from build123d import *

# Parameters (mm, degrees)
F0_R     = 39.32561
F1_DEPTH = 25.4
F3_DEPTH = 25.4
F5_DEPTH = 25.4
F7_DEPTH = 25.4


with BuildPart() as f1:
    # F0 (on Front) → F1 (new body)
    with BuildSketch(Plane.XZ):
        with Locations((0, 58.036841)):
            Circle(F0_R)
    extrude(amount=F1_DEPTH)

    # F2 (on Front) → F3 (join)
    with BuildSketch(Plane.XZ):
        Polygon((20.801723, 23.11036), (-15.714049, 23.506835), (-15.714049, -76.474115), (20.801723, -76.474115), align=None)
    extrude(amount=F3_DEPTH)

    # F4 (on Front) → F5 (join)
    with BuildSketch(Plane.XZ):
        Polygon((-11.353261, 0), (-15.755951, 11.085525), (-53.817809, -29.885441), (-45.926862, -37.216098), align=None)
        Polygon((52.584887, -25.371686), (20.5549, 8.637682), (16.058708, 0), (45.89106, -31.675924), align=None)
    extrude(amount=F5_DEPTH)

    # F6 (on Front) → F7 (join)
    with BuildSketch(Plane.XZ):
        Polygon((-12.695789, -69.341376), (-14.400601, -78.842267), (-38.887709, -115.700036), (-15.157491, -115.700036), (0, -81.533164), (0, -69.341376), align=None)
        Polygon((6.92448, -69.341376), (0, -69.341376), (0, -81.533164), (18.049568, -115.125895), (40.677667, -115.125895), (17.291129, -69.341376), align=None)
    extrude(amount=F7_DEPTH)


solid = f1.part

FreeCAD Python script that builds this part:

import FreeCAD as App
import Part
import Sketcher
from FreeCAD import Vector
Q = App.Units.Quantity


def add_polygon(sketch, points):
    """Adds a closed chain of lines whose ends are joined by coincident constraints."""
    first, n = sketch.GeometryCount, len(points)
    for a, b in zip(points, points[1:] + points[:1]):
        sketch.addGeometry(Part.LineSegment(App.Vector(*a, 0), App.Vector(*b, 0)), False)
    for i in range(n):
        sketch.addConstraint(Sketcher.Constraint("Coincident", first + i, 2, first + (i + 1) % n, 1))

doc = App.newDocument("Part")
body = doc.addObject("PartDesign::Body", "Body")

# Sketch on XZ plane
sketch1 = body.newObject("Sketcher::SketchObject", "Sketch")
sketch1.AttachmentSupport = (doc.getObject("XZ_Plane"), [""])
sketch1.MapMode = "FlatFace"
sketch1.addGeometry(Part.Circle(Vector(0, 58, 0), Vector(0, 0, 1), 39), False)
sketch1.addConstraint(Sketcher.Constraint("PointOnObject", 0, 3, -2))
sketch1.addConstraint(Sketcher.Constraint("Diameter", 0, Q("78.65122 mm")))
sketch1.addConstraint(Sketcher.Constraint("DistanceY", -1, 1, 0, 3, Q("58.036841 mm")))
pad1 = body.newObject("PartDesign::Pad", "Pad")
pad1.Profile = sketch1
pad1.Length = Q("1 in")

# Sketch on XZ plane
sketch2 = body.newObject("Sketcher::SketchObject", "Sketch001")
sketch2.AttachmentSupport = (doc.getObject("XZ_Plane"), [""])
sketch2.MapMode = "FlatFace"
add_polygon(sketch2, [(21, 23), (-16, 24), (-16, -76), (21, -76)])  # lines 0-3
sketch2.addConstraint(Sketcher.Constraint("Vertical", 1))
sketch2.addConstraint(Sketcher.Constraint("Horizontal", 2))
sketch2.addConstraint(Sketcher.Constraint("Vertical", 3))
sketch2.addConstraint(Sketcher.Constraint("DistanceX", 2, 1, 2, 2, Q("36.515772 mm")))
sketch2.addConstraint(Sketcher.Constraint("DistanceY", 1, 2, 1, 1, Q("99.98095 mm")))
sketch2.addConstraint(Sketcher.Constraint("DistanceY", 3, 1, 3, 2, Q("99.584475 mm")))
sketch2.addConstraint(Sketcher.Constraint("DistanceX", 0, 2, -1, 1, Q("15.714049 mm")))
sketch2.addConstraint(Sketcher.Constraint("DistanceY", -1, 1, 3, 2, Q("23.11036 mm")))
pad2 = body.newObject("PartDesign::Pad", "Pad001")
pad2.Profile = sketch2
pad2.Length = Q("1 in")

# Sketch on XZ plane
sketch3 = body.newObject("Sketcher::SketchObject", "Sketch002")
sketch3.AttachmentSupport = (doc.getObject("XZ_Plane"), [""])
sketch3.MapMode = "FlatFace"
add_polygon(sketch3, [(-11, 0), (-16, 11), (-54, -30), (-46, -37)])  # lines 0-3
add_polygon(sketch3, [(53, -25), (21, 9), (16, 0), (46, -32)])  # lines 4-7
sketch3.addConstraint(Sketcher.Constraint("PointOnObject", 3, 2, -1))
sketch3.addConstraint(Sketcher.Constraint("PointOnObject", 5, 2, -1))
sketch3.addConstraint(Sketcher.Constraint("Perpendicular", 1, 2))
sketch3.addConstraint(Sketcher.Constraint("Perpendicular", 2, 3))
sketch3.addConstraint(Sketcher.Constraint("Parallel", 4, 6))
sketch3.addConstraint(Sketcher.Constraint("Perpendicular", 6, 7))
sketch3.addConstraint(Sketcher.Constraint("DistanceY", 2, 2, -1, 1, Q("37.216098 mm")))
sketch3.addConstraint(Sketcher.Constraint("DistanceX", -1, 1, 4, 2, Q("20.5549 mm")))
sketch3.addConstraint(Sketcher.Constraint("DistanceX", 2, 2, 3, 2, Q("34.573601 mm")))
sketch3.addConstraint(Sketcher.Constraint("Distance", 1, Q("55.922492 mm")))
sketch3.addConstraint(Sketcher.Constraint("Distance", 2, Q("10.770588 mm")))
sketch3.addConstraint(Sketcher.Constraint("Distance", 6, Q("43.512451 mm")))
sketch3.addConstraint(Sketcher.Constraint("DistanceX", 0, 2, -1, 1, Q("15.755951 mm")))
sketch3.addConstraint(Sketcher.Constraint("DistanceX", -1, 1, 6, 2, Q("45.89106 mm")))
sketch3.addConstraint(Sketcher.Constraint("DistanceY", 2, 2, 4, 2, Q("45.85378 mm")))
sketch3.addConstraint(Sketcher.Constraint("DistanceX", 3, 2, 5, 2, Q("27.411969 mm")))
pad3 = body.newObject("PartDesign::Pad", "Pad002")
pad3.Profile = sketch3
pad3.Length = Q("1 in")

# Sketch on XZ plane
sketch4 = body.newObject("Sketcher::SketchObject", "Sketch003")
sketch4.AttachmentSupport = (doc.getObject("XZ_Plane"), [""])
sketch4.MapMode = "FlatFace"
add_polygon(sketch4, [(-13, -69), (-14, -79), (-39, -116), (-15, -116), (0, -82), (18, -115), (41, -115), (17, -69)])  # lines 0-7
sketch4.addConstraint(Sketcher.Constraint("Horizontal", 2))
sketch4.addConstraint(Sketcher.Constraint("Horizontal", 5))
sketch4.addConstraint(Sketcher.Constraint("Horizontal", 7))
sketch4.addConstraint(Sketcher.Constraint("PointOnObject", 3, 2, -2))
sketch4.addConstraint(Sketcher.Constraint("DistanceX", 5, 1, 5, 2, Q("22.628099 mm")))
sketch4.addConstraint(Sketcher.Constraint("DistanceX", 2, 1, 2, 2, Q("23.730218 mm")))
sketch4.addConstraint(Sketcher.Constraint("DistanceX", 7, 2, 7, 1, Q("29.986918 mm")))
sketch4.addConstraint(Sketcher.Constraint("DistanceX", 0, 2, -1, 1, Q("14.400601 mm")))
sketch4.addConstraint(Sketcher.Constraint("Distance", 3, Q("37.378131 mm")))
sketch4.addConstraint(Sketcher.Constraint("Distance", 4, Q("38.134741 mm")))
sketch4.addConstraint(Sketcher.Constraint("DistanceX", 1, 2, -1, 1, Q("38.887709 mm")))
sketch4.addConstraint(Sketcher.Constraint("DistanceX", -1, 1, 4, 2, Q("18.049568 mm")))
sketch4.addConstraint(Sketcher.Constraint("DistanceX", -1, 1, 6, 2, Q("17.291129 mm")))
sketch4.addConstraint(Sketcher.Constraint("DistanceY", 1, 2, 0, 2, Q("36.857769 mm")))
sketch4.addConstraint(Sketcher.Constraint("DistanceY", 3, 2, 6, 2, Q("12.191788 mm")))
sketch4.addConstraint(Sketcher.Constraint("DistanceY", 0, 2, -1, 1, Q("78.842267 mm")))
pad4 = body.newObject("PartDesign::Pad", "Pad003")
pad4.Profile = sketch4
pad4.Length = Q("1 in")

doc.recompute()
